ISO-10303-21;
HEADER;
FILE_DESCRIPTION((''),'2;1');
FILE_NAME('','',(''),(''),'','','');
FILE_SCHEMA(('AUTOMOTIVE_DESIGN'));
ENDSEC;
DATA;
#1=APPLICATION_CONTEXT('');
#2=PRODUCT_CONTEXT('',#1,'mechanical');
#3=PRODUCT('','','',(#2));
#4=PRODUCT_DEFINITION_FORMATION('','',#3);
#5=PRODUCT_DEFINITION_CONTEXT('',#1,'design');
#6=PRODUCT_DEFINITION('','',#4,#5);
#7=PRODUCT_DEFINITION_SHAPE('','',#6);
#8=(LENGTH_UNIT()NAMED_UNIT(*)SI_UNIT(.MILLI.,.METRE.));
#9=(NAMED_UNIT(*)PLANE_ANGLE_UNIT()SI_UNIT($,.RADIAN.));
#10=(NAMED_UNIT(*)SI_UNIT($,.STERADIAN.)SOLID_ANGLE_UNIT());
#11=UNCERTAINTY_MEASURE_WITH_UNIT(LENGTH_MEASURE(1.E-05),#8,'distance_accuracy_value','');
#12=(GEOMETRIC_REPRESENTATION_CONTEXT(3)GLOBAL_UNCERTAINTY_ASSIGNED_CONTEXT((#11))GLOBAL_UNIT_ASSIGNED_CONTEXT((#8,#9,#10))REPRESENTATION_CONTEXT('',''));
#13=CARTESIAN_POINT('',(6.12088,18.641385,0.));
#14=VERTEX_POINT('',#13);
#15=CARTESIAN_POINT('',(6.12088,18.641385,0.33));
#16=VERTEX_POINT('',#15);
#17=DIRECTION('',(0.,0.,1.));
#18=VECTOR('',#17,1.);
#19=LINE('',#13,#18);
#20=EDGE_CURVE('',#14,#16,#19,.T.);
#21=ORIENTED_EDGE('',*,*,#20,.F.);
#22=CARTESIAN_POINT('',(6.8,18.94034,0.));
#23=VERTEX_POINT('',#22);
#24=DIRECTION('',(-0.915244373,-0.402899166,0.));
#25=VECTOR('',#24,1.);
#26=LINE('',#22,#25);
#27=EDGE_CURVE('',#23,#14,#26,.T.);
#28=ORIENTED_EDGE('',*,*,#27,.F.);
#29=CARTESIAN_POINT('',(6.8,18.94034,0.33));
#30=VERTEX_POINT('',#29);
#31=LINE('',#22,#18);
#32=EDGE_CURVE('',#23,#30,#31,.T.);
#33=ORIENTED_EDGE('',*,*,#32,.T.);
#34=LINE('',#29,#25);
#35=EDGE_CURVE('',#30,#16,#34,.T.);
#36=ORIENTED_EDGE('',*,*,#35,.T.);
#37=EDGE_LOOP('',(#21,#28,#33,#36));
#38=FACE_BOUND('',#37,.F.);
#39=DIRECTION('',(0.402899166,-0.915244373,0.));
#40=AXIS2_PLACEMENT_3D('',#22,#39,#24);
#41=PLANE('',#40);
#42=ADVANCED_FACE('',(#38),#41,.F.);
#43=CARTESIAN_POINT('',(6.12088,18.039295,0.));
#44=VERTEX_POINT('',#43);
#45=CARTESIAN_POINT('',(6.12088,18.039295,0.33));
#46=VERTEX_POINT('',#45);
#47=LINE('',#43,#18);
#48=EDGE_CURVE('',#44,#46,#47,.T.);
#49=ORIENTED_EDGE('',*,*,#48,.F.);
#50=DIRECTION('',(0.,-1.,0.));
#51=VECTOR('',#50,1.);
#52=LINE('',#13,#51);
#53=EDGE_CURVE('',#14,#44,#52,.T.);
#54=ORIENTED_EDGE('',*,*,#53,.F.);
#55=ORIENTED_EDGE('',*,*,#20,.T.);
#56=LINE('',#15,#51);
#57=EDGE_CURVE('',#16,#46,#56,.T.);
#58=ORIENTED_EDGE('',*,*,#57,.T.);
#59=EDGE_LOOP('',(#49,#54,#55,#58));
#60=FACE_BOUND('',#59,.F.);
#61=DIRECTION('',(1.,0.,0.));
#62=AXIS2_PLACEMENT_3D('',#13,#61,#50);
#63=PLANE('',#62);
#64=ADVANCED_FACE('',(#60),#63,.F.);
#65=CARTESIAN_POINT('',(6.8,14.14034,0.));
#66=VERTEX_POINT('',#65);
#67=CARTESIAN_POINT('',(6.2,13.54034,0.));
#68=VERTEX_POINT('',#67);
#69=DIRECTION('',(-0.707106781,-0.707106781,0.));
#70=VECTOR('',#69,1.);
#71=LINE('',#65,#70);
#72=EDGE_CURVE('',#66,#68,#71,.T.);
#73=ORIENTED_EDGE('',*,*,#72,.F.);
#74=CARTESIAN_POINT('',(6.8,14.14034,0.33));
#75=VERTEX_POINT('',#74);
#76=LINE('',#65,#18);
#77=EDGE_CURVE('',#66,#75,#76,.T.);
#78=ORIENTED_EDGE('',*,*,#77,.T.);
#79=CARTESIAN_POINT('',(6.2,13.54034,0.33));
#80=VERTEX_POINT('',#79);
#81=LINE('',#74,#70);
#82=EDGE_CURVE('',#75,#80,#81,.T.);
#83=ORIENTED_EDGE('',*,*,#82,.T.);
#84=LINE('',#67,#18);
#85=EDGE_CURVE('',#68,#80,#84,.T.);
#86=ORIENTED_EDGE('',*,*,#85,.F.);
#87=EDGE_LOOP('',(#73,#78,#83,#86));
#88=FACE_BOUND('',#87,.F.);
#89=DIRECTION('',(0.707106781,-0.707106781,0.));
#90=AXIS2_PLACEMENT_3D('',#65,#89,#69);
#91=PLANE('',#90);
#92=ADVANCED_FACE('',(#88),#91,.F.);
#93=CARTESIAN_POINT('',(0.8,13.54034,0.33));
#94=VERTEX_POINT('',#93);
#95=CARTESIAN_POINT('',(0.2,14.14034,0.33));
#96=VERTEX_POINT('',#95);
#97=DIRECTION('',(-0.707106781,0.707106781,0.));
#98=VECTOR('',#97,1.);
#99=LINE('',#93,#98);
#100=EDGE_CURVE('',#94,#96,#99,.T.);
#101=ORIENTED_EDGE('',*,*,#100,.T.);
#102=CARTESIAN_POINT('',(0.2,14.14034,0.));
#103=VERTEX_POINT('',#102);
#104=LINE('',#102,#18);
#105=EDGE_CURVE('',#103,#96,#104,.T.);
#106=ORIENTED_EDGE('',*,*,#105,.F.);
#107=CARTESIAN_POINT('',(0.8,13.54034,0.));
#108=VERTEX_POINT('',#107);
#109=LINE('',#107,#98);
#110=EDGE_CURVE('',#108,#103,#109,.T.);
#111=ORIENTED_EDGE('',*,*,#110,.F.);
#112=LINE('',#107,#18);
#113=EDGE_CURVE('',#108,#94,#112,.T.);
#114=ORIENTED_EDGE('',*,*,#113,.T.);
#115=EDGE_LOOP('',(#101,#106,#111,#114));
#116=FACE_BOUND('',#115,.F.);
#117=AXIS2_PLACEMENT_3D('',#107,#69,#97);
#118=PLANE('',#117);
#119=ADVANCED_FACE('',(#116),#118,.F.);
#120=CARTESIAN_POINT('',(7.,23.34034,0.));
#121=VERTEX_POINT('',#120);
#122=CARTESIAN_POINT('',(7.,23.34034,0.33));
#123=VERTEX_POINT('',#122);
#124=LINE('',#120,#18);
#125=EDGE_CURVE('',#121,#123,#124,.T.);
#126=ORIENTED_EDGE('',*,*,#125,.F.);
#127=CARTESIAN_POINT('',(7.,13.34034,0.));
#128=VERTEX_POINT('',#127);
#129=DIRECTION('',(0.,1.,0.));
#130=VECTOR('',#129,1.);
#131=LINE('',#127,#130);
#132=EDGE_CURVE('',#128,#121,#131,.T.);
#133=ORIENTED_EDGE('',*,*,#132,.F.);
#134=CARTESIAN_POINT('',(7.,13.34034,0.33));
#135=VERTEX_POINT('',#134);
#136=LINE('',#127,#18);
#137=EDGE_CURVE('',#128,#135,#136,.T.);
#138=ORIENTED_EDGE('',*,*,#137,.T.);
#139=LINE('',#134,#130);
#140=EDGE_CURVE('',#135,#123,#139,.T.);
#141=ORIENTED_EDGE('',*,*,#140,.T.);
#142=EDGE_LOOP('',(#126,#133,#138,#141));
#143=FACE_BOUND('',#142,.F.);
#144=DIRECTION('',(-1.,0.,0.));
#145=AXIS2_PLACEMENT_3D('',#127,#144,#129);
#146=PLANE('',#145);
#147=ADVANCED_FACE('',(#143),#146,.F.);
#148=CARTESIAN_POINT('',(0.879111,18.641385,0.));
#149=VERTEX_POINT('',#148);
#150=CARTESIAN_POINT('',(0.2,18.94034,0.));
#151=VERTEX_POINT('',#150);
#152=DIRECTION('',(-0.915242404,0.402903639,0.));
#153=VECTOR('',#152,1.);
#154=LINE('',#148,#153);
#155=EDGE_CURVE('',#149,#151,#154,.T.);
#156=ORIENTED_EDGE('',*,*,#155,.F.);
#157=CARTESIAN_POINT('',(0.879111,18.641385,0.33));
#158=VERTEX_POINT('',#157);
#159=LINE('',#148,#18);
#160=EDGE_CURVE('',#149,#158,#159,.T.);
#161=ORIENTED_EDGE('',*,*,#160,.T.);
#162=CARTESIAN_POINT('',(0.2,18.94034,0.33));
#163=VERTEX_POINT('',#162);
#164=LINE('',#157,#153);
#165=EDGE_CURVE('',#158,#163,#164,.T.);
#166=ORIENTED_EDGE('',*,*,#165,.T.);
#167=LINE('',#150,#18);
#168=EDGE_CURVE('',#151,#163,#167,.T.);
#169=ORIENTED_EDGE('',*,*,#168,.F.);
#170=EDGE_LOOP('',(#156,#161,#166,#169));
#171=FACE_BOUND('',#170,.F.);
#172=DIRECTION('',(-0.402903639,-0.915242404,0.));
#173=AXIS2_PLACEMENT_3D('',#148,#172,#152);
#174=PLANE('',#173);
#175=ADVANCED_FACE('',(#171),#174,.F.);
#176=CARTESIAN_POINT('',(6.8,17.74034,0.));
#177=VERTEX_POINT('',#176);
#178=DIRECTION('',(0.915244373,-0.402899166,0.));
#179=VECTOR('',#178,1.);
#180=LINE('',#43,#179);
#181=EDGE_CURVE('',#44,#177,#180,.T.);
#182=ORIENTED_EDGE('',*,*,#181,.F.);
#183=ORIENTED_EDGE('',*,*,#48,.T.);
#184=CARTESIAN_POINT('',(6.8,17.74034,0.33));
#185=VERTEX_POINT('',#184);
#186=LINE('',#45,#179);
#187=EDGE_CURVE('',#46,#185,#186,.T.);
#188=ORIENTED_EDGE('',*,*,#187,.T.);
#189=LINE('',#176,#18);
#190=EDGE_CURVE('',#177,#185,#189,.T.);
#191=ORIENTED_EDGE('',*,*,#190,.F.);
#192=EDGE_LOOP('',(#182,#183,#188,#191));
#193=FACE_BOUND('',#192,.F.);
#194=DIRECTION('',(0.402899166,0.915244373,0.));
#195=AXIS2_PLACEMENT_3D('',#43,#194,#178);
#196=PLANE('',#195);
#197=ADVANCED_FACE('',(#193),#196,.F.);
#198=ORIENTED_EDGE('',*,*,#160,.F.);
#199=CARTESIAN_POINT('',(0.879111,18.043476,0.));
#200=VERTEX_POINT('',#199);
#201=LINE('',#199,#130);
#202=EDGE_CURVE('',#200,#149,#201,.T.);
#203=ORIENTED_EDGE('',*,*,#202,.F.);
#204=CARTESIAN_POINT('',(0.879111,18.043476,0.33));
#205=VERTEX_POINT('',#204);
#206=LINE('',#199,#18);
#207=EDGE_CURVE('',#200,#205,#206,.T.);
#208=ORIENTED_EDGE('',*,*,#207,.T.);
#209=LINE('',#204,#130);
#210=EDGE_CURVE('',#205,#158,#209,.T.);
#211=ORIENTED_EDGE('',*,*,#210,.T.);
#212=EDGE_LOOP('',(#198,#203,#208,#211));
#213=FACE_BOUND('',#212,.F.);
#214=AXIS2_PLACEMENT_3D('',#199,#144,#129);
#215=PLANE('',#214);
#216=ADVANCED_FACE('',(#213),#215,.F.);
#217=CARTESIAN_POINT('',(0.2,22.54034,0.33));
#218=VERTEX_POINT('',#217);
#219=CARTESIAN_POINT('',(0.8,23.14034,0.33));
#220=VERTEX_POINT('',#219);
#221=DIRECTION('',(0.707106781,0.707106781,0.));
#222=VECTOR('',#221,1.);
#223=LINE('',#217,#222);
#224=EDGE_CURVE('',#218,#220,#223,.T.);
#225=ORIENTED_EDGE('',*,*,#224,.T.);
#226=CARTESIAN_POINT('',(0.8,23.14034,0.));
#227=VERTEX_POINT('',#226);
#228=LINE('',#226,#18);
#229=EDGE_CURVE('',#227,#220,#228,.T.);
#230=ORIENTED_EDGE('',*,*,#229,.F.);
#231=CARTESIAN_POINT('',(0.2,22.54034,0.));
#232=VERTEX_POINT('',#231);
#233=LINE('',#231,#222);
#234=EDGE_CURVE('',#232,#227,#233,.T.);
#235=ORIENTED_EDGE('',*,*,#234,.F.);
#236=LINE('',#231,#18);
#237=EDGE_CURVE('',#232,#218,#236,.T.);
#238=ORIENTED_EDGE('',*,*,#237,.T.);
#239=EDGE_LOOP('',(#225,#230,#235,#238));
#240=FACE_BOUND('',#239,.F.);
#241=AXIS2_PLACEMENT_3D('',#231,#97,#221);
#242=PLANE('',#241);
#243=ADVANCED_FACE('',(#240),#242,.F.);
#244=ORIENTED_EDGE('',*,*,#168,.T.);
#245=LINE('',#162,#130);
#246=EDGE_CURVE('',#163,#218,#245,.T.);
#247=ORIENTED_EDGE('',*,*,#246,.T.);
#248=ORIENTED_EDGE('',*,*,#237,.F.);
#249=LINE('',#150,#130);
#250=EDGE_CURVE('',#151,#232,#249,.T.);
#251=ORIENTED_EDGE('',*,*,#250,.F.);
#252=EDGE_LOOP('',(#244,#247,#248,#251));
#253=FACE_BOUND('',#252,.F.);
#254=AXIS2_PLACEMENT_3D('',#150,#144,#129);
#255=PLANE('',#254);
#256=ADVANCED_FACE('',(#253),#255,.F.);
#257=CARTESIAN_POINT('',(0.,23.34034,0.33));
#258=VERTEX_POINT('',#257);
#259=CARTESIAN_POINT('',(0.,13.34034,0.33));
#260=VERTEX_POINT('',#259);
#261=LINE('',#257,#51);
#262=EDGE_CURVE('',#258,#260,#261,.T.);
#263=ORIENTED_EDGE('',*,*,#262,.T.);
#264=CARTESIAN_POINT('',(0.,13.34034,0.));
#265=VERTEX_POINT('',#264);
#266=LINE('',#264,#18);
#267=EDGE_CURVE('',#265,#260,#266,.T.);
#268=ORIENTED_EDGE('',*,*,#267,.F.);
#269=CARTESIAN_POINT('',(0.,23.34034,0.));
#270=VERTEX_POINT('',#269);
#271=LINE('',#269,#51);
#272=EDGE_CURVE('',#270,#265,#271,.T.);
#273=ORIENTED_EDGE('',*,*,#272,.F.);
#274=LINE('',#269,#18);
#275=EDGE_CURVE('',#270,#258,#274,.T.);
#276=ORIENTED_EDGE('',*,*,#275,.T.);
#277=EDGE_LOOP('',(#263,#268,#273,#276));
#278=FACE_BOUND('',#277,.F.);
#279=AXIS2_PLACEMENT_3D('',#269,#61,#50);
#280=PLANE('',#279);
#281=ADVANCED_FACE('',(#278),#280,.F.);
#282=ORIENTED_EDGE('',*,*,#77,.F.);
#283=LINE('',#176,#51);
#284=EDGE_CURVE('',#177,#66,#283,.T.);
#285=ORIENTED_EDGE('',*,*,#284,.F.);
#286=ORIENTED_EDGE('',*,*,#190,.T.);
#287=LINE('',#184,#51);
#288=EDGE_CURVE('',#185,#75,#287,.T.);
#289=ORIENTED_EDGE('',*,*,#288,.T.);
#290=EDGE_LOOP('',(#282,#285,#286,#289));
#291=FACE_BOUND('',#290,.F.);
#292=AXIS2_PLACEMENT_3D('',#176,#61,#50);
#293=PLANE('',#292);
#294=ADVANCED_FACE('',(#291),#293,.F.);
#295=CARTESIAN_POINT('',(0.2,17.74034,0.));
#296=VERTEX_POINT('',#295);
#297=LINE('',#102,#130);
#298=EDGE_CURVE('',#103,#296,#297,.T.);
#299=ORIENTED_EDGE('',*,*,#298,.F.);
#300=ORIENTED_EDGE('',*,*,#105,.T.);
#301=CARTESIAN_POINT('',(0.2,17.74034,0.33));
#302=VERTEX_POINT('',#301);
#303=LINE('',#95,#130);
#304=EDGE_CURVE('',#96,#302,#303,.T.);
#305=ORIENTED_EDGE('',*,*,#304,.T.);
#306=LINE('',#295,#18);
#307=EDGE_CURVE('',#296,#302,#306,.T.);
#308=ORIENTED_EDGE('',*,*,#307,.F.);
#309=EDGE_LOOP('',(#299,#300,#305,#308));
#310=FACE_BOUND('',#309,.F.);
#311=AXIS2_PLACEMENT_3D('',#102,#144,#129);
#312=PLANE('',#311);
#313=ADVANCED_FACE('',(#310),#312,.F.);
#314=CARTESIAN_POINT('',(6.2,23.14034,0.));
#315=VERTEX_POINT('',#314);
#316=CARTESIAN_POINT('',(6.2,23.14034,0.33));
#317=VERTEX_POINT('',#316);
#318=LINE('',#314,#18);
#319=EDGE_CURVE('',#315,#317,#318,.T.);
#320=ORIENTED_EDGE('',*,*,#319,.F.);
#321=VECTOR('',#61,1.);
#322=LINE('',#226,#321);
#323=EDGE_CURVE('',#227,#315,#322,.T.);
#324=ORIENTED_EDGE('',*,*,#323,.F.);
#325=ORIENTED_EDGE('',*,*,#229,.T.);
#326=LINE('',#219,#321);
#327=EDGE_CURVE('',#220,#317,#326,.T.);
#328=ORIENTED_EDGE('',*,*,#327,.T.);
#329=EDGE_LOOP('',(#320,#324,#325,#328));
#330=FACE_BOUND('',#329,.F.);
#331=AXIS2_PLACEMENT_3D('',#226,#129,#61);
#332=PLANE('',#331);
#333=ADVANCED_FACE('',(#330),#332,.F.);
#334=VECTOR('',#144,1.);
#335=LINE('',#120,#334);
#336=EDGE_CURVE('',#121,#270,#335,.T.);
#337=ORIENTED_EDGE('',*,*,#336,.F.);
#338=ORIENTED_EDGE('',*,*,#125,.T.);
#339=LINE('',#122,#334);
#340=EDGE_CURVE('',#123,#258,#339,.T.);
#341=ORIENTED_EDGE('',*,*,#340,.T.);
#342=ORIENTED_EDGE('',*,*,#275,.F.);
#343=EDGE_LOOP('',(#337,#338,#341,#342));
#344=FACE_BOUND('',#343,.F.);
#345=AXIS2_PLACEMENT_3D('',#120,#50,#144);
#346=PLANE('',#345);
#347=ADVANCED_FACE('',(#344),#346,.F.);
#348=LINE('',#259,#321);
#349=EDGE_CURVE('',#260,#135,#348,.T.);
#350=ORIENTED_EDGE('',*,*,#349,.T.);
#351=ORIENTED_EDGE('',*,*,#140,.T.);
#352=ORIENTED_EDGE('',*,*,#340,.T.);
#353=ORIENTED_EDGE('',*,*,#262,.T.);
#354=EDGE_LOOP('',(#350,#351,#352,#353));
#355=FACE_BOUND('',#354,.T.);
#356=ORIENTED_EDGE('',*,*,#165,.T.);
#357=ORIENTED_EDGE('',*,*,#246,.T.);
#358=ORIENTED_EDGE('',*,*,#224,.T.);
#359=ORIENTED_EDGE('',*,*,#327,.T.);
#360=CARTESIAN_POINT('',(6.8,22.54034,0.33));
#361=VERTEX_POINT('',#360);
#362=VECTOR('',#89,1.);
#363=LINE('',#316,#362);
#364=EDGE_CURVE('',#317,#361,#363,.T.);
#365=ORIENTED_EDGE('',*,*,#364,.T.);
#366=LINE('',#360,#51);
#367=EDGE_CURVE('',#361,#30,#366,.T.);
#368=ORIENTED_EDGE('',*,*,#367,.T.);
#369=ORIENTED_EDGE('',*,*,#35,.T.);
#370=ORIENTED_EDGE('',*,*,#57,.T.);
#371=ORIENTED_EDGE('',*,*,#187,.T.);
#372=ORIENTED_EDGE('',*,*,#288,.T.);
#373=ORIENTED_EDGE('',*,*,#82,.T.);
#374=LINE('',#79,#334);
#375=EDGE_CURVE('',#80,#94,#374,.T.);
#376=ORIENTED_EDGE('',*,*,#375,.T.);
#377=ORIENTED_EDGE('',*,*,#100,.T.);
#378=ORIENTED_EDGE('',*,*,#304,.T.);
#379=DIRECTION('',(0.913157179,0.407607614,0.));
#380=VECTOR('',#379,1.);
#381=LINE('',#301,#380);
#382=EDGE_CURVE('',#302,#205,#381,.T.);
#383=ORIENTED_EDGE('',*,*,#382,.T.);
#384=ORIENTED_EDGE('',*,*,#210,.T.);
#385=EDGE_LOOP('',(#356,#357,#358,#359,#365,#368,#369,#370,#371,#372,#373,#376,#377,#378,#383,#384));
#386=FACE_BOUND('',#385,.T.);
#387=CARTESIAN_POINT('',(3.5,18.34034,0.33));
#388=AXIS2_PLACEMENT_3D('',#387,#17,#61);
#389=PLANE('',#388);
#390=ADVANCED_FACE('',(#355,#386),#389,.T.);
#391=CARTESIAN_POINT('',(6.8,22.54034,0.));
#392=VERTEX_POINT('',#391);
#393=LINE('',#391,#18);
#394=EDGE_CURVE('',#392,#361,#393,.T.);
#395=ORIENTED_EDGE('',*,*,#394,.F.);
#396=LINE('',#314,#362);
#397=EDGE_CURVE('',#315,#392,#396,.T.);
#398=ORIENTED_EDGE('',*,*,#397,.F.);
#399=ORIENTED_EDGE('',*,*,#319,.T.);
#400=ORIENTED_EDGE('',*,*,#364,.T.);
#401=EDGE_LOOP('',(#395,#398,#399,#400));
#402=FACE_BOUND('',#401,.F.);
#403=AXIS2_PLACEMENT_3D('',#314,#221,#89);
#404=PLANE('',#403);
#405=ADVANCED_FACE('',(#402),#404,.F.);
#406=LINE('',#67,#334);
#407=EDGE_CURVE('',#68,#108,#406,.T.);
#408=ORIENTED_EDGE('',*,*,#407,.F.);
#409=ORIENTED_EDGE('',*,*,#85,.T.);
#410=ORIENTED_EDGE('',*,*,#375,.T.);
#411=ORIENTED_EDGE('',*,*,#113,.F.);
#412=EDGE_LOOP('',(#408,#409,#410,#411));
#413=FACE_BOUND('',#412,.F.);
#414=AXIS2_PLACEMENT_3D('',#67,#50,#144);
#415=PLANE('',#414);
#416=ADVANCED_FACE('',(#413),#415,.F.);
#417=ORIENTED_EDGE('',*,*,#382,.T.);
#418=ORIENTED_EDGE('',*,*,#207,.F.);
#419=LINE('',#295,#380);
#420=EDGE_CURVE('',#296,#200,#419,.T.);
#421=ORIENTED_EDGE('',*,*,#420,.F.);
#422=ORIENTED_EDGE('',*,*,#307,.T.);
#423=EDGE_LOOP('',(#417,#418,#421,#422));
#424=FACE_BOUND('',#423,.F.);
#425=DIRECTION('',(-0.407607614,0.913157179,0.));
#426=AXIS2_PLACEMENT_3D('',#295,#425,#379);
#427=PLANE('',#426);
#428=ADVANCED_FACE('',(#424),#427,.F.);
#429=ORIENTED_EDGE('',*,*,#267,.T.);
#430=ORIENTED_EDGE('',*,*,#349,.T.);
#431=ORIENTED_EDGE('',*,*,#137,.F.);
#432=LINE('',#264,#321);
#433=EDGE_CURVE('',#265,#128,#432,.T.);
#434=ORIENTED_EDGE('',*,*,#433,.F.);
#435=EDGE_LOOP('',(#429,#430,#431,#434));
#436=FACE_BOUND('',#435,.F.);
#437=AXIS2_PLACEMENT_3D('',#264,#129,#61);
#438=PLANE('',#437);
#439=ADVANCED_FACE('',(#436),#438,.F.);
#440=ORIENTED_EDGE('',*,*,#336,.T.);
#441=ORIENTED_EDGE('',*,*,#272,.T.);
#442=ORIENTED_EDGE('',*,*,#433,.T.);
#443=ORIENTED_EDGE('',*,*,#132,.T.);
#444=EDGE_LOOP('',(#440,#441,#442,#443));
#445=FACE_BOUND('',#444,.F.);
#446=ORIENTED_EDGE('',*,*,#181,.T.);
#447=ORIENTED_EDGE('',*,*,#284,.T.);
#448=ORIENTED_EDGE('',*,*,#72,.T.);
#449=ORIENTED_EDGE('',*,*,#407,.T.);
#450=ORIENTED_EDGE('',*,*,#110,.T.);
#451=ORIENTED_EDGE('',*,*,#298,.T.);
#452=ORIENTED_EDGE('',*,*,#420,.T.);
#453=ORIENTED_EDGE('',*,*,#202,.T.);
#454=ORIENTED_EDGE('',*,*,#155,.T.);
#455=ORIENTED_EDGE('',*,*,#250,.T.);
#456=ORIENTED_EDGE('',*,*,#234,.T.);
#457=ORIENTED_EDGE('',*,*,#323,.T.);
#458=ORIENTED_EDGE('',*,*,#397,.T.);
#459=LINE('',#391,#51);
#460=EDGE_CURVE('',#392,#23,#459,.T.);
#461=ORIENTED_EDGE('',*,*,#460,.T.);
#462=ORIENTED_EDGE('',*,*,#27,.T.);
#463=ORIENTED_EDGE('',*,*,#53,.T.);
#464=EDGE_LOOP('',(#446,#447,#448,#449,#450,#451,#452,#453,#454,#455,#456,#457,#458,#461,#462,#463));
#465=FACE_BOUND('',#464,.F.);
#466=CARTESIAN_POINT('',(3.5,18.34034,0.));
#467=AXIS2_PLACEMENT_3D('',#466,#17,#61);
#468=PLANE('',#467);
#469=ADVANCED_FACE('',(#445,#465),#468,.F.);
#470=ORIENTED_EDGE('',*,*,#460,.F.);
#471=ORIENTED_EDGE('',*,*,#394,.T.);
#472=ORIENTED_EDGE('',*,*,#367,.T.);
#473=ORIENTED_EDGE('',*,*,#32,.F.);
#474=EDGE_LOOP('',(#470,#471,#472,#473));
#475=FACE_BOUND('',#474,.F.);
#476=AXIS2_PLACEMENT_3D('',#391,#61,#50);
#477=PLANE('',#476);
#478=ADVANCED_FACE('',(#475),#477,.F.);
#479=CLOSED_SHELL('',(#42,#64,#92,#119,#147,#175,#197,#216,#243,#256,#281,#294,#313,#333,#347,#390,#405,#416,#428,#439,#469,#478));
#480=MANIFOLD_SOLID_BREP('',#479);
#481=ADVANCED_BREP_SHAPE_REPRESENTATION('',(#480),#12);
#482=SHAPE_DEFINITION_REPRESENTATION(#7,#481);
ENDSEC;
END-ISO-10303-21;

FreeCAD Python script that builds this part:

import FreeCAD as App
import Part
import Sketcher
from FreeCAD import Vector
Q = App.Units.Quantity


def add_polygon(sketch, points):
    """Adds a closed chain of lines whose ends are joined by coincident constraints."""
    first, n = sketch.GeometryCount, len(points)
    for a, b in zip(points, points[1:] + points[:1]):
        sketch.addGeometry(Part.LineSegment(App.Vector(*a, 0), App.Vector(*b, 0)), False)
    for i in range(n):
        sketch.addConstraint(Sketcher.Constraint("Coincident", first + i, 2, first + (i + 1) % n, 1))

doc = App.newDocument("Part")
body = doc.addObject("PartDesign::Body", "Body")

# Sketch on XY plane
sketch1 = doc.addObject("Sketcher::SketchObject", "Sketch")
body.addObject(sketch1)
sketch1.AttachmentSupport = (doc.XY_Plane, [""])
sketch1.MapMode = "FlatFace"
add_polygon(sketch1, [(7, 23.3), (0, 23.3), (0, 13.3), (7, 13.3)])  # lines 0-3
add_polygon(sketch1, [(0.2, 18.9), (0.2, 22.5), (0.8, 23.1), (6.2, 23.1), (6.8, 22.5), (6.8, 18.9), (6.1, 18.6), (6.1, 18), (6.8, 17.7), (6.8, 14.1), (6.2, 13.5), (0.8, 13.5), (0.2, 14.1), (0.2, 17.7), (0.9, 18), (0.9, 18.6)])  # lines 4-19
sketch1.addConstraint(Sketcher.Constraint("Horizontal", 0))
sketch1.addConstraint(Sketcher.Constraint("Vertical", 1))
sketch1.addConstraint(Sketcher.Constraint("Horizontal", 2))
sketch1.addConstraint(Sketcher.Constraint("Vertical", 3))
sketch1.addConstraint(Sketcher.Constraint("Vertical", 4))
sketch1.addConstraint(Sketcher.Constraint("Horizontal", 6))
sketch1.addConstraint(Sketcher.Constraint("Vertical", 8))
sketch1.addConstraint(Sketcher.Constraint("Vertical", 10))
sketch1.addConstraint(Sketcher.Constraint("Vertical", 12))
sketch1.addConstraint(Sketcher.Constraint("Horizontal", 14))
sketch1.addConstraint(Sketcher.Constraint("Vertical", 16))
sketch1.addConstraint(Sketcher.Constraint("Vertical", 18))
sketch1.addConstraint(Sketcher.Constraint("PointOnObject", 0, 2, -2))
sketch1.addConstraint(Sketcher.Constraint("Perpendicular", 5, 7))
sketch1.addConstraint(Sketcher.Constraint("Perpendicular", 7, 13))
sketch1.addConstraint(Sketcher.Constraint("Perpendicular", 13, 15))
sketch1.addConstraint(Sketcher.Constraint("Horizontal", 4, 2, 7, 2))
sketch1.addConstraint(Sketcher.Constraint("Horizontal", 12, 2, 15, 2))
sketch1.addConstraint(Sketcher.Constraint("Horizontal", 11, 2, 16, 2))
sketch1.addConstraint(Sketcher.Constraint("Horizontal", 9, 2, 18, 2))
sketch1.addConstraint(Sketcher.Constraint("Horizontal", 8, 2, 19, 2))
sketch1.addConstraint(Sketcher.Constraint("Vertical", 8, 2, 11, 2))
sketch1.addConstraint(Sketcher.Constraint("Vertical", 6, 2, 13, 2))
sketch1.addConstraint(Sketcher.Constraint("Vertical", 5, 2, 14, 2))
sketch1.addConstraint(Sketcher.Constraint("Vertical", 4, 2, 15, 2))
sketch1.addConstraint(Sketcher.Constraint("Equal", 8, 12))
sketch1.addConstraint(Sketcher.Constraint("Equal", 9, 11))
sketch1.addConstraint(Sketcher.Constraint("DistanceX", 0, 2, 0, 1, Q("7 mm")))
sketch1.addConstraint(Sketcher.Constraint("DistanceY", 1, 2, 1, 1, Q("10 mm")))
sketch1.addConstraint(Sketcher.Constraint("DistanceX", 6, 1, 6, 2, Q("5.4 mm")))
sketch1.addConstraint(Sketcher.Constraint("DistanceY", 4, 1, 4, 2, Q("3.6 mm")))
sketch1.addConstraint(Sketcher.Constraint("DistanceX", 4, 2, 6, 2, Q("6 mm")))
sketch1.addConstraint(Sketcher.Constraint("DistanceX", -1, 1, 4, 2, Q("0.2 mm")))
sketch1.addConstraint(Sketcher.Constraint("DistanceY", 4, 2, 0, 2, Q("0.8 mm")))
sketch1.addConstraint(Sketcher.Constraint("DistanceY", 11, 2, 8, 2, Q("1.2 mm")))
sketch1.addConstraint(Sketcher.Constraint("Distance", 19, Q("0.742001 mm")))
sketch1.addConstraint(Sketcher.Constraint("DistanceY", 10, 2, 10, 1, Q("0.60209 mm")))
sketch1.addConstraint(Sketcher.Constraint("DistanceY", 18, 1, 18, 2, Q("0.597909 mm")))
sketch1.addConstraint(Sketcher.Constraint("Distance", 9, Q("0.742009 mm")))
sketch1.addConstraint(Sketcher.Constraint("DistanceY", -1, 1, 0, 2, Q("23.34034 mm")))
pad1 = doc.addObject("PartDesign::Pad", "Pad")
body.addObject(pad1)
pad1.Profile = sketch1
pad1.Length = 0.33

doc.recompute()
